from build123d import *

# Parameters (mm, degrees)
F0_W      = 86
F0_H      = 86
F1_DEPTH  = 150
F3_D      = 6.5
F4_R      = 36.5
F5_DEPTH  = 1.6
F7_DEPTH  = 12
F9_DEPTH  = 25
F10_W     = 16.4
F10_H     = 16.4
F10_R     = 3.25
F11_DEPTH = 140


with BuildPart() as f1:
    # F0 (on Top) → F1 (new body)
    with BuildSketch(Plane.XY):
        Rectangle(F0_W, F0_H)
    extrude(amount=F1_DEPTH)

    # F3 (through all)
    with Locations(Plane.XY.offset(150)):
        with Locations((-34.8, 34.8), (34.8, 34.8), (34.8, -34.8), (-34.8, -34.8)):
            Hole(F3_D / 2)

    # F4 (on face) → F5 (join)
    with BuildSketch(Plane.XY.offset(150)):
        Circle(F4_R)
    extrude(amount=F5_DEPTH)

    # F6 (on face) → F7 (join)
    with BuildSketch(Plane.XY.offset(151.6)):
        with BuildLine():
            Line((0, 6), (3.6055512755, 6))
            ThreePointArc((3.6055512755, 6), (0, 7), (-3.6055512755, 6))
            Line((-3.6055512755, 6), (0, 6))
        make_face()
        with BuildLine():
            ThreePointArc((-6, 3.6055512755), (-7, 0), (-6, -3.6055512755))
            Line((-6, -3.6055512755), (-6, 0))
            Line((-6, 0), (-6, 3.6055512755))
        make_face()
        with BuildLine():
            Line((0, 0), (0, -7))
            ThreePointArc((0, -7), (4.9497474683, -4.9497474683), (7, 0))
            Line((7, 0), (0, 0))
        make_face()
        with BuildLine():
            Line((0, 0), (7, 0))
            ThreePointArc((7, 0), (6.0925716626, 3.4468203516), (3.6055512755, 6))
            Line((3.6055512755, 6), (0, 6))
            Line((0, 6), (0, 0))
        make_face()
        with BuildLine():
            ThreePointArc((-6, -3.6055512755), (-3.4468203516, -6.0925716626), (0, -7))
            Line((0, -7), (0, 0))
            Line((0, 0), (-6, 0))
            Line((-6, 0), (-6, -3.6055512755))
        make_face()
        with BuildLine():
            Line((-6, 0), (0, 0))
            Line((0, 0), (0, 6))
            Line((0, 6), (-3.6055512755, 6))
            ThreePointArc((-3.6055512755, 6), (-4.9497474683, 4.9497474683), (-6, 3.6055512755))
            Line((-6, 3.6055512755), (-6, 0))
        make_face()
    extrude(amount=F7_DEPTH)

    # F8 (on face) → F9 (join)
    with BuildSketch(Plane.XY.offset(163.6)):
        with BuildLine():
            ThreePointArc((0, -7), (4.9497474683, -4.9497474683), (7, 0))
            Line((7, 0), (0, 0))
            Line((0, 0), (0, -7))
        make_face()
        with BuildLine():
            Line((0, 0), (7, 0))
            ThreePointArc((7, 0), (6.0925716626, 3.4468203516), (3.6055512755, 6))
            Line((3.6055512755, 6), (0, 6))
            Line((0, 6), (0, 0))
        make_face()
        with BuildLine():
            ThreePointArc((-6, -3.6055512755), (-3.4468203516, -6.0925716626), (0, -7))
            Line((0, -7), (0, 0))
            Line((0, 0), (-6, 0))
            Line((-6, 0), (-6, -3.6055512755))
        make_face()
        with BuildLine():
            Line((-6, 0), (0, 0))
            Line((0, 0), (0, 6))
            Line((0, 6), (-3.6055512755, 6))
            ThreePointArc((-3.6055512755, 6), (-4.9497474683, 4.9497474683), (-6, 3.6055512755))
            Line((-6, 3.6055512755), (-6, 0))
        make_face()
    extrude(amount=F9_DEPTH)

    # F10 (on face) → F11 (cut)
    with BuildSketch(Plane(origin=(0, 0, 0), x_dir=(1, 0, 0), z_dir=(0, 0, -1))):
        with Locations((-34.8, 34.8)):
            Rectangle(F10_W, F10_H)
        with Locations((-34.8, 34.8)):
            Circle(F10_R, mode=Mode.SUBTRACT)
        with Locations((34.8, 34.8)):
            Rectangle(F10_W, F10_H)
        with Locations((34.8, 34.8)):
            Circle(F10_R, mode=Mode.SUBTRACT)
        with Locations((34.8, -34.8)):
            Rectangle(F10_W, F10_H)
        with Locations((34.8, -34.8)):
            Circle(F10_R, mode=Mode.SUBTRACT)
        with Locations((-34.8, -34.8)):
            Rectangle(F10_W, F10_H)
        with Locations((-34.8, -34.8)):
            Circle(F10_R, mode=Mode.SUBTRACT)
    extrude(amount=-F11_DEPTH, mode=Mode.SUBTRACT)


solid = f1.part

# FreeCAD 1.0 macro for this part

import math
import FreeCAD as App
import Part
import Sketcher

doc = App.newDocument("Part")
params = doc.addObject("Spreadsheet::Sheet", "Params")
for row, (alias, value) in enumerate([
    ("sketch1_width", "86 mm"),
    ("pad1_length", "150 mm"),
    ("sketch2_diameter", "6.5 mm"),
    ("hole_diameter", "6.5 mm"),
    ("sketch3_diameter", "73 mm"),
    ("pad2_length", "1.6 mm"),
    ("sketch4_radius", "7 mm"),
    ("pad3_length", "12 mm"),
    ("sketch5_radius", "7 mm"),
    ("pad4_length", "25 mm"),
    ("sketch6_diameter", "6.5 mm"),
    ("sketch6_width", "16.4 mm"),
    ("pocket1_length", "140 mm"),
], start=1):
    params.set(f"A{row}", alias)
    params.set(f"B{row}", "=" + value)
    params.setAlias(f"B{row}", alias)

body = doc.addObject("PartDesign::Body", "Body")

# Sketch on XY plane
sketch1 = body.newObject("Sketcher::SketchObject", "Sketch")
sketch1.AttachmentSupport = (doc.getObject("XY_Plane"), [""])
sketch1.MapMode = "FlatFace"
sketch1.addGeometry([
    Part.LineSegment(App.Vector(-43, 43, 0), App.Vector(-43, -43, 0)),
    Part.LineSegment(App.Vector(-43, -43, 0), App.Vector(43, -43, 0)),
    Part.LineSegment(App.Vector(43, -43, 0), App.Vector(43, 43, 0)),
    Part.LineSegment(App.Vector(43, 43, 0), App.Vector(-43, 43, 0)),
], False)
sketch1.addConstraint([
    Sketcher.Constraint("Coincident", 0, 2, 1, 1),
    Sketcher.Constraint("Coincident", 1, 2, 2, 1),
    Sketcher.Constraint("Coincident", 2, 2, 3, 1),
    Sketcher.Constraint("Coincident", 3, 2, 0, 1),
    Sketcher.Constraint("Vertical", 0),
    Sketcher.Constraint("Horizontal", 1),
    Sketcher.Constraint("Vertical", 2),
    Sketcher.Constraint("Horizontal", 3),
    Sketcher.Constraint("Symmetric", 0, 2, 2, 2, -1, 1),
    Sketcher.Constraint("Equal", 3, 0),
    Sketcher.Constraint("DistanceX", 1, 1, 1, 2, 86.0),
])
sketch1.setExpression("Constraints[10]", "Params.sketch1_width")
pad1 = body.newObject("PartDesign::Pad", "Pad")
pad1.Profile = sketch1
pad1.setExpression("Length", "Params.pad1_length")

# Sketch on XY plane
sketch2 = body.newObject("Sketcher::SketchObject", "Sketch001")
sketch2.AttachmentSupport = (doc.getObject("XY_Plane"), [""])
sketch2.MapMode = "FlatFace"
sketch2.AttachmentOffset = App.Placement(App.Vector(0, 0, 150), App.Rotation())
sketch2.addGeometry([
    Part.Circle(App.Vector(-34.8, 34.8, 0), App.Vector(0, 0, 1), 3.25),
    Part.Circle(App.Vector(34.8, 34.8, 0), App.Vector(0, 0, 1), 3.25),
    Part.Circle(App.Vector(34.8, -34.8, 0), App.Vector(0, 0, 1), 3.25),
    Part.Circle(App.Vector(-34.8, -34.8, 0), App.Vector(0, 0, 1), 3.25),
], False)
sketch2.addConstraint([
    Sketcher.Constraint("Equal", 0, 1),
    Sketcher.Constraint("Equal", 1, 2),
    Sketcher.Constraint("Equal", 2, 3),
    Sketcher.Constraint("Symmetric", 0, 3, 2, 3, -1, 1),
    Sketcher.Constraint("Symmetric", 1, 3, 3, 3, -1, 1),
    Sketcher.Constraint("Symmetric", 0, 3, 1, 3, -2),
    Sketcher.Constraint("Diameter", 0, 6.5),
    Sketcher.Constraint("DistanceX", 0, 3, -1, 1, 34.8),
    Sketcher.Constraint("DistanceY", -1, 1, 0, 3, 34.8),
])
sketch2.setExpression("Constraints[6]", "Params.sketch2_diameter")
doc.recompute()
hole = body.newObject("PartDesign::Hole", "Hole")
hole.Profile = sketch2
hole.ThreadType = "None"
hole.setExpression("Diameter", "Params.hole_diameter")
hole.DepthType = "ThroughAll"

# Sketch on XY plane
sketch3 = body.newObject("Sketcher::SketchObject", "Sketch002")
sketch3.AttachmentSupport = (doc.getObject("XY_Plane"), [""])
sketch3.MapMode = "FlatFace"
sketch3.AttachmentOffset = App.Placement(App.Vector(0, 0, 150), App.Rotation())
sketch3.addGeometry(Part.Circle(App.Vector(0, 0, 0), App.Vector(0, 0, 1), 36.5), False)
sketch3.addConstraint([
    Sketcher.Constraint("Coincident", 0, 3, -1, 1),
    Sketcher.Constraint("Diameter", 0, 73.0),
])
sketch3.setExpression("Constraints[1]", "Params.sketch3_diameter")
pad2 = body.newObject("PartDesign::Pad", "Pad001")
pad2.Profile = sketch3
pad2.setExpression("Length", "Params.pad2_length")

# Sketch on XY plane
sketch4 = body.newObject("Sketcher::SketchObject", "Sketch003")
sketch4.AttachmentSupport = (doc.getObject("XY_Plane"), [""])
sketch4.MapMode = "FlatFace"
sketch4.AttachmentOffset = App.Placement(App.Vector(0, 0, 151.6), App.Rotation())
sketch4.addGeometry([
    Part.ArcOfCircle(Part.Circle(App.Vector(0, 0, 0), App.Vector(0, 0, 1), 7), math.radians(58.997281), math.radians(121.002719)),
    Part.ArcOfCircle(Part.Circle(App.Vector(0, 0, 0), App.Vector(0, 0, 1), 7), math.radians(121.002719), math.radians(148.997281)),
    Part.ArcOfCircle(Part.Circle(App.Vector(0, 0, 0), App.Vector(0, 0, 1), 7), math.radians(148.997281), math.radians(211.002719)),
    Part.ArcOfCircle(Part.Circle(App.Vector(0, 0, 0), App.Vector(0, 0, 1), 7), math.radians(-148.997281), math.radians(58.997281)),
], False)
sketch4.addConstraint([
    Sketcher.Constraint("Tangent", 0, 2, 1, 1),
    Sketcher.Constraint("Tangent", 1, 2, 2, 1),
    Sketcher.Constraint("Tangent", 2, 2, 3, 1),
    Sketcher.Constraint("Tangent", 3, 2, 0, 1),
    Sketcher.Constraint("Coincident", 0, 3, -1, 1),
    Sketcher.Constraint("Equal", 0, 1),
    Sketcher.Constraint("Horizontal", 0, 2, 3, 2),
    Sketcher.Constraint("Vertical", 1, 2, 2, 2),
    Sketcher.Constraint("Radius", 0, 7.0),
    Sketcher.Constraint("DistanceY", -1, 1, 0, 2, 6.0),
    Sketcher.Constraint("DistanceX", 1, 2, -1, 1, 6.0),
])
sketch4.setExpression("Constraints[8]", "Params.sketch4_radius")
pad3 = body.newObject("PartDesign::Pad", "Pad002")
pad3.Profile = sketch4
pad3.setExpression("Length", "Params.pad3_length")

# Sketch on XY plane
sketch5 = body.newObject("Sketcher::SketchObject", "Sketch004")
sketch5.AttachmentSupport = (doc.getObject("XY_Plane"), [""])
sketch5.MapMode = "FlatFace"
sketch5.AttachmentOffset = App.Placement(App.Vector(0, 0, 163.6), App.Rotation())
sketch5.addGeometry([
    Part.LineSegment(App.Vector(3.605551, 6, 0), App.Vector(-3.605551, 6, 0)),
    Part.ArcOfCircle(Part.Circle(App.Vector(0, 0, 0), App.Vector(0, 0, 1), 7), math.radians(121.002719), math.radians(148.997281)),
    Part.LineSegment(App.Vector(-6, 3.605551, 0), App.Vector(-6, -3.605551, 0)),
    Part.ArcOfCircle(Part.Circle(App.Vector(0, 0, 0), App.Vector(0, 0, 1), 7), math.radians(-148.997281), math.radians(58.997281)),
], False)
sketch5.addConstraint([
    Sketcher.Constraint("Coincident", 0, 2, 1, 1),
    Sketcher.Constraint("Coincident", 1, 2, 2, 1),
    Sketcher.Constraint("Coincident", 2, 2, 3, 1),
    Sketcher.Constraint("Coincident", 3, 2, 0, 1),
    Sketcher.Constraint("Horizontal", 0),
    Sketcher.Constraint("Vertical", 2),
    Sketcher.Constraint("Coincident", 1, 3, -1, 1),
    Sketcher.Constraint("Coincident", 3, 3, -1, 1),
    Sketcher.Constraint("Equal", 1, 3),
    Sketcher.Constraint("Equal", 0, 2),
    Sketcher.Constraint("Radius", 1, 7.0),
    Sketcher.Constraint("DistanceY", -1, 1, 0, 2, 6.0),
])
sketch5.setExpression("Constraints[10]", "Params.sketch5_radius")
pad4 = body.newObject("PartDesign::Pad", "Pad003")
pad4.Profile = sketch5
pad4.setExpression("Length", "Params.pad4_length")

# Sketch on XY plane
sketch6 = body.newObject("Sketcher::SketchObject", "Sketch005")
sketch6.AttachmentSupport = (doc.getObject("XY_Plane"), [""])
sketch6.MapMode = "FlatFace"
sketch6.addGeometry([
    Part.LineSegment(App.Vector(-43, -43, 0), App.Vector(-43, -26.6, 0)),  # 0
    Part.LineSegment(App.Vector(-43, -26.6, 0), App.Vector(-26.6, -26.6, 0)),  # 1
    Part.LineSegment(App.Vector(-26.6, -26.6, 0), App.Vector(-26.6, -43, 0)),  # 2
    Part.LineSegment(App.Vector(-26.6, -43, 0), App.Vector(-43, -43, 0)),  # 3
    Part.Circle(App.Vector(-34.8, -34.8, 0), App.Vector(0, 0, 1), 3.25),  # 4
    Part.LineSegment(App.Vector(26.6, -43, 0), App.Vector(26.6, -26.6, 0)),  # 5
    Part.LineSegment(App.Vector(26.6, -26.6, 0), App.Vector(43, -26.6, 0)),  # 6
    Part.LineSegment(App.Vector(43, -26.6, 0), App.Vector(43, -43, 0)),  # 7
    Part.LineSegment(App.Vector(43, -43, 0), App.Vector(26.6, -43, 0)),  # 8
    Part.Circle(App.Vector(34.8, -34.8, 0), App.Vector(0, 0, 1), 3.25),  # 9
    Part.LineSegment(App.Vector(26.6, 26.6, 0), App.Vector(26.6, 43, 0)),  # 10
    Part.LineSegment(App.Vector(26.6, 43, 0), App.Vector(43, 43, 0)),  # 11
    Part.LineSegment(App.Vector(43, 43, 0), App.Vector(43, 26.6, 0)),  # 12
    Part.LineSegment(App.Vector(43, 26.6, 0), App.Vector(26.6, 26.6, 0)),  # 13
    Part.Circle(App.Vector(34.8, 34.8, 0), App.Vector(0, 0, 1), 3.25),  # 14
    Part.LineSegment(App.Vector(-43, 26.6, 0), App.Vector(-43, 43, 0)),  # 15
    Part.LineSegment(App.Vector(-43, 43, 0), App.Vector(-26.6, 43, 0)),  # 16
    Part.LineSegment(App.Vector(-26.6, 43, 0), App.Vector(-26.6, 26.6, 0)),  # 17
    Part.LineSegment(App.Vector(-26.6, 26.6, 0), App.Vector(-43, 26.6, 0)),  # 18
    Part.Circle(App.Vector(-34.8, 34.8, 0), App.Vector(0, 0, 1), 3.25),  # 19
], False)
sketch6.addConstraint([
    Sketcher.Constraint("Coincident", 0, 2, 1, 1),
    Sketcher.Constraint("Coincident", 1, 2, 2, 1),
    Sketcher.Constraint("Coincident", 2, 2, 3, 1),
    Sketcher.Constraint("Coincident", 3, 2, 0, 1),
    Sketcher.Constraint("Coincident", 5, 2, 6, 1),
    Sketcher.Constraint("Coincident", 6, 2, 7, 1),
    Sketcher.Constraint("Coincident", 7, 2, 8, 1),
    Sketcher.Constraint("Coincident", 8, 2, 5, 1),
    Sketcher.Constraint("Coincident", 10, 2, 11, 1),
    Sketcher.Constraint("Coincident", 11, 2, 12, 1),
    Sketcher.Constraint("Coincident", 12, 2, 13, 1),
    Sketcher.Constraint("Coincident", 13, 2, 10, 1),
    Sketcher.Constraint("Coincident", 15, 2, 16, 1),
    Sketcher.Constraint("Coincident", 16, 2, 17, 1),
    Sketcher.Constraint("Coincident", 17, 2, 18, 1),
    Sketcher.Constraint("Coincident", 18, 2, 15, 1),
    Sketcher.Constraint("Vertical", 0),
    Sketcher.Constraint("Horizontal", 1),
    Sketcher.Constraint("Vertical", 2),
    Sketcher.Constraint("Horizontal", 3),
    Sketcher.Constraint("Vertical", 5),
    Sketcher.Constraint("Horizontal", 6),
    Sketcher.Constraint("Vertical", 7),
    Sketcher.Constraint("Horizontal", 8),
    Sketcher.Constraint("Vertical", 10),
    Sketcher.Constraint("Horizontal", 11),
    Sketcher.Constraint("Vertical", 12),
    Sketcher.Constraint("Horizontal", 13),
    Sketcher.Constraint("Vertical", 15),
    Sketcher.Constraint("Horizontal", 16),
    Sketcher.Constraint("Vertical", 17),
    Sketcher.Constraint("Horizontal", 18),
    Sketcher.Constraint("Equal", 4, 9),
    Sketcher.Constraint("Equal", 9, 14),
    Sketcher.Constraint("Equal", 14, 19),
    Sketcher.Constraint("Symmetric", 4, 3, 14, 3, -1, 1),
    Sketcher.Constraint("Symmetric", 9, 3, 19, 3, -1, 1),
    Sketcher.Constraint("Symmetric", 2, 2, 10, 2, -1, 1),
    Sketcher.Constraint("Symmetric", 0, 2, 12, 2, -1, 1),
    Sketcher.Constraint("Symmetric", 7, 2, 15, 2, -1, 1),
    Sketcher.Constraint("Symmetric", 5, 2, 17, 2, -1, 1),
    Sketcher.Constraint("Symmetric", 4, 3, 9, 3, -2),
    Sketcher.Constraint("Symmetric", 1, 2, 5, 2, -2),
    Sketcher.Constraint("Symmetric", 3, 2, 7, 2, -2),
    Sketcher.Constraint("Equal", 18, 0),
    Sketcher.Constraint("Diameter", 4, 6.5),
    Sketcher.Constraint("DistanceX", 1, 1, 1, 2, 16.4),
    Sketcher.Constraint("DistanceX", 0, 2, -1, 1, 43.0),
    Sketcher.Constraint("DistanceY", 2, 2, -1, 1, 43.0),
    Sketcher.Constraint("DistanceX", 4, 3, -1, 1, 34.8),
    Sketcher.Constraint("DistanceY", 4, 3, -1, 1, 34.8),
])
sketch6.setExpression("Constraints[45]", "Params.sketch6_diameter")
sketch6.setExpression("Constraints[46]", "Params.sketch6_width")
pocket1 = body.newObject("PartDesign::Pocket", "Pocket")
pocket1.Profile = sketch6
pocket1.setExpression("Length", "Params.pocket1_length")
pocket1.Reversed = True

doc.recompute()
